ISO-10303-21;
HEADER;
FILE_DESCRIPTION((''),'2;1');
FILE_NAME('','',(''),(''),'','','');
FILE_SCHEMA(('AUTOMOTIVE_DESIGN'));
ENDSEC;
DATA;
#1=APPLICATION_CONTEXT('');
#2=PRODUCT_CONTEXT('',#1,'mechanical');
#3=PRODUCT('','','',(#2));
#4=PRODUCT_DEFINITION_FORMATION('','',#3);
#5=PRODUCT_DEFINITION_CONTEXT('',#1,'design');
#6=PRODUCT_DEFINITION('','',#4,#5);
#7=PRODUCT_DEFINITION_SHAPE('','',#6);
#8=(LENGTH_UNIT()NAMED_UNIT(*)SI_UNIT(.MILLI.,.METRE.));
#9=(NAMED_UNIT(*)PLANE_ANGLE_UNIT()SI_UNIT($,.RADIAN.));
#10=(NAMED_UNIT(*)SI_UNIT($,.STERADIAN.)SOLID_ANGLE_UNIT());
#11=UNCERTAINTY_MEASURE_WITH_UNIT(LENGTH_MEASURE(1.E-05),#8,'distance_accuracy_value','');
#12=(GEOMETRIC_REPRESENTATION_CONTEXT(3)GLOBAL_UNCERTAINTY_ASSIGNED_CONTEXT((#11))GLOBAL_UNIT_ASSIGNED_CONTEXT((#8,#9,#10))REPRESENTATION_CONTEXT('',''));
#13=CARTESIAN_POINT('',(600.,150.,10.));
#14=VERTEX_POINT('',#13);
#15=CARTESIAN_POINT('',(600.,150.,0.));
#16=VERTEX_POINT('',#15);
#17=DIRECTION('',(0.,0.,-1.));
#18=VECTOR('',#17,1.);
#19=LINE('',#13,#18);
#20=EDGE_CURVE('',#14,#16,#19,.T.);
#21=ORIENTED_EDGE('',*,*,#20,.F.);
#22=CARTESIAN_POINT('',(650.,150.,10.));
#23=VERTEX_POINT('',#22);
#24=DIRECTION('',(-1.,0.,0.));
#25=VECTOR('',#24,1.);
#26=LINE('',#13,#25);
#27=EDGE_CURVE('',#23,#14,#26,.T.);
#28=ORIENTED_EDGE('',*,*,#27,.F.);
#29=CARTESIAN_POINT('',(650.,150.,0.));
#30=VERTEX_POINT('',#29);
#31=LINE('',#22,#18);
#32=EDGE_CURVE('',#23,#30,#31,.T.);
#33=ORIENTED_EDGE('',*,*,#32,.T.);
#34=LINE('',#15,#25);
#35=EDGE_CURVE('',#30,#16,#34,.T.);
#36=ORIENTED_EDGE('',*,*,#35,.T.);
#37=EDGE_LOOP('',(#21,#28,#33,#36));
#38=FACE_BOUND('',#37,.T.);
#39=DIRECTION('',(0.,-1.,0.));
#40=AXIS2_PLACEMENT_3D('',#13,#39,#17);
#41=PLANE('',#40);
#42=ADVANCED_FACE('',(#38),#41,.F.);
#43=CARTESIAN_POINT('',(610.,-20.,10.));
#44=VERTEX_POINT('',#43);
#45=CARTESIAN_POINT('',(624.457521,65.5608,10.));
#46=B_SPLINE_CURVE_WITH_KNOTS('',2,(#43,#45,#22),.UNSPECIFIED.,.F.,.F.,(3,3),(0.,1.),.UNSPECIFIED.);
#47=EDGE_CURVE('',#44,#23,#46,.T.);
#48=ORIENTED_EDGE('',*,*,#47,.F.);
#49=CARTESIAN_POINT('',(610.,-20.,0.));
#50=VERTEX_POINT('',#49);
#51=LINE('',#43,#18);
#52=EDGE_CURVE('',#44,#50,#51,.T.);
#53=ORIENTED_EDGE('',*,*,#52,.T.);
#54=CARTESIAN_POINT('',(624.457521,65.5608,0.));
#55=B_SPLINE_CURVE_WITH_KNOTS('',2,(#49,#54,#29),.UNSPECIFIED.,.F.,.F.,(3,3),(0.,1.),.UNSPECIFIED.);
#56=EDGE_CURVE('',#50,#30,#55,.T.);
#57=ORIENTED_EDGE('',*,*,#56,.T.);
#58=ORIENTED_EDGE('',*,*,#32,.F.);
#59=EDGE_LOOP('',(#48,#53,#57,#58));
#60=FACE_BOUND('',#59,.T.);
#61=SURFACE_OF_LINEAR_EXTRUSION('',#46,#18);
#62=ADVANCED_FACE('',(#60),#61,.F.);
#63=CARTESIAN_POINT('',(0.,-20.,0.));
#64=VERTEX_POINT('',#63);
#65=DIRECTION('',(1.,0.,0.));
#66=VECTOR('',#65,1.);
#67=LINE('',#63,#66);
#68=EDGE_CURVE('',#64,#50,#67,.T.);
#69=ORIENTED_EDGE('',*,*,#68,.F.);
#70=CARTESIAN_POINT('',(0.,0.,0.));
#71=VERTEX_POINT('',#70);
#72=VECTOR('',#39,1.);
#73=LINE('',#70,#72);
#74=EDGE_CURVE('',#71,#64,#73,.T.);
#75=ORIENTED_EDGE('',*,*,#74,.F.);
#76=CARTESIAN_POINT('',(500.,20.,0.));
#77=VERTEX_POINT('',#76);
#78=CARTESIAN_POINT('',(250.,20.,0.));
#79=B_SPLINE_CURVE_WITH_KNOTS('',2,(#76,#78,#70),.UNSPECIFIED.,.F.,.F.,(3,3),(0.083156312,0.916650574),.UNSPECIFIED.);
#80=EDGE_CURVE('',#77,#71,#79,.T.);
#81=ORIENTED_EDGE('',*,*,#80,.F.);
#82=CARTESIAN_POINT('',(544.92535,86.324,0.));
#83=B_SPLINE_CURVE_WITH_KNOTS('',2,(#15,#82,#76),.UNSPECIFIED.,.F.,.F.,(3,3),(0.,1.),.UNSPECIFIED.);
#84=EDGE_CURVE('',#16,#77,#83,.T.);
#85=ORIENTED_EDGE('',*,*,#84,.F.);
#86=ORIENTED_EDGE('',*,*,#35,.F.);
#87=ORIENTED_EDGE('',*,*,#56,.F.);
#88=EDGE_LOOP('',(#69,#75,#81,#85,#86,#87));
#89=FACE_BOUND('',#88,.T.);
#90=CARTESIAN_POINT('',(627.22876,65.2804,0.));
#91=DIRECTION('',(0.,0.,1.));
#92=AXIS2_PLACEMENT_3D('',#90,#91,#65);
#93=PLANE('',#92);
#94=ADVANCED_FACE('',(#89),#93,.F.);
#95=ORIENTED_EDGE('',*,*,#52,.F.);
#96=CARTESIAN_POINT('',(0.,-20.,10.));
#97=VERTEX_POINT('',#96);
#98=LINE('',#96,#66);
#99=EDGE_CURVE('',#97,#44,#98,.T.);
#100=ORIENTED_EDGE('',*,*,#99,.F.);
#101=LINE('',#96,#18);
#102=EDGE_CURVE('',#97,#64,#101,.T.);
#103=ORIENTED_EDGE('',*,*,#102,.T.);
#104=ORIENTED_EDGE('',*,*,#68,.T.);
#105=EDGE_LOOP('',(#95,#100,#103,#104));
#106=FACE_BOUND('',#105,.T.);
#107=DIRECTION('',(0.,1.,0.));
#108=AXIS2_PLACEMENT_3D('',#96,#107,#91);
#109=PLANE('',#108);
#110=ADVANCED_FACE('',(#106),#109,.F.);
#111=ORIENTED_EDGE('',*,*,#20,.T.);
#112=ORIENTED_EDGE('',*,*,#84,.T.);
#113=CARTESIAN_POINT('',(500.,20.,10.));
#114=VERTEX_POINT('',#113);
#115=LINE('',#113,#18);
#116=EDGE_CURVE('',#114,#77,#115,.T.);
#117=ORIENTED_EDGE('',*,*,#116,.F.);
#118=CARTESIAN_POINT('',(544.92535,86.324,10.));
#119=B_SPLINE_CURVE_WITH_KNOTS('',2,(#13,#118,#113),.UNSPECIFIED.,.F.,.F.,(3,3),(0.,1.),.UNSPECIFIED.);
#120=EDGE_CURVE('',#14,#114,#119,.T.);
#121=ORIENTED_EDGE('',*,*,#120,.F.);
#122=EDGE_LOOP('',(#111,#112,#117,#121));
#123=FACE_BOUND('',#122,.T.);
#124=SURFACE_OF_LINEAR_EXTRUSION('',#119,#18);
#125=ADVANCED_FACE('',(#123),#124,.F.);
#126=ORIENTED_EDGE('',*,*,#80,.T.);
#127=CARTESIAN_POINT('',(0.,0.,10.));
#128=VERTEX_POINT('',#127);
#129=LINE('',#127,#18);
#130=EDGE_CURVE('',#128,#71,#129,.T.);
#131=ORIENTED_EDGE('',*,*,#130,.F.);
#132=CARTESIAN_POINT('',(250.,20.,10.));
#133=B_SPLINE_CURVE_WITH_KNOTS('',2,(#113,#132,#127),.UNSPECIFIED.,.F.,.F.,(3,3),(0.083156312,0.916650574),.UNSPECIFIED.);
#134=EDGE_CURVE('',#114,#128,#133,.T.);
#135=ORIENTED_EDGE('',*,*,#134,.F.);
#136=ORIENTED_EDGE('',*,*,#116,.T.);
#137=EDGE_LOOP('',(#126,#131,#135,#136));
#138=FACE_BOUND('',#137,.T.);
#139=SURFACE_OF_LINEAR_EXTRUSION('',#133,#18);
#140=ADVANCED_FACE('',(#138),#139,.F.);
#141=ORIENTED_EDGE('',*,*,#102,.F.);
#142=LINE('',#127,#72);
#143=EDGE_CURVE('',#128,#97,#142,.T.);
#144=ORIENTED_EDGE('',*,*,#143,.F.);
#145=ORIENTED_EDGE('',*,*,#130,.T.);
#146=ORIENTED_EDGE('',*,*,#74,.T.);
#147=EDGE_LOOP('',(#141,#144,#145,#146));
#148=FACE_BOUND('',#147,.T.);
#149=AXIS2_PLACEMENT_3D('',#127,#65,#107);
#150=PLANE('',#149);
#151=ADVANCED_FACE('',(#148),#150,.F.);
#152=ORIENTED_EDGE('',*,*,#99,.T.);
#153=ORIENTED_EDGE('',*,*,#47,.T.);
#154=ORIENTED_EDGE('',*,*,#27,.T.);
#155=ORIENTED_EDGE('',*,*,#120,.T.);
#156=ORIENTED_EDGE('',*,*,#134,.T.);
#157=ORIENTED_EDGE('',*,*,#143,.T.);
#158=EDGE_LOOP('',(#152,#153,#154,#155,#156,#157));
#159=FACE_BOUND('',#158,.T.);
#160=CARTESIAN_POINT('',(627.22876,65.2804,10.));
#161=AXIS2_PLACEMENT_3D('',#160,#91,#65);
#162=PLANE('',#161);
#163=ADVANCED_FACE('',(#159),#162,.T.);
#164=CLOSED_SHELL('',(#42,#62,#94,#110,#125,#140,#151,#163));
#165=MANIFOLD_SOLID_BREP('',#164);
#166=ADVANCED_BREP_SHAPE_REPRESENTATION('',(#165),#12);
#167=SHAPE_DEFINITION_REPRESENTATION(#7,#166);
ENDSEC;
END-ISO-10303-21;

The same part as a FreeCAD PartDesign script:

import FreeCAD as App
import Part
import Sketcher

V = App.Vector

doc = App.newDocument("Part")
params = doc.addObject("Spreadsheet::Sheet", "Params")
for row, (alias, value) in enumerate([
    ("pad1_length", "10 mm"),
], start=1):
    params.set(f"A{row}", alias)
    params.set(f"B{row}", "=" + value)
    params.setAlias(f"B{row}", alias)

body = doc.addObject("PartDesign::Body", "Body")

sketch1 = body.newObject("Sketcher::SketchObject", "Sketch")
sketch1.AttachmentSupport = (doc.getObject("XY_Plane"), [""])
sketch1.MapMode = "FlatFace"
sketch1.addGeometry([
    Part.LineSegment(V(0, 0, 0), V(0, -20, 0)),
    Part.LineSegment(V(0, -20, 0), V(610, -20, 0)),
    Part.BSplineCurve([V(610, -20, 0), V(624.457521, 65.5608, 0), V(650, 150, 0)], [3, 3], [0, 1], False, 2, [1, 1, 1], False),
    Part.LineSegment(V(650, 150, 0), V(600, 150, 0)),
    Part.BSplineCurve([V(600, 150, 0), V(544.92535, 86.324, 0), V(500, 20, 0)], [3, 3], [0, 1], False, 2, [1, 1, 1], False),
    Part.BSplineCurve([V(0, 0, 0), V(250, 20, 0), V(500, 20, 0)], [3, 3], [0.083156312, 0.916650574], False, 2, [1, 1, 1], False),
], False)
sketch1.addConstraint([
    Sketcher.Constraint("Block", 2),
    Sketcher.Constraint("Block", 4),
    Sketcher.Constraint("Block", 5),
    Sketcher.Constraint("Coincident", 0, 2, 1, 1),
    Sketcher.Constraint("Coincident", 1, 2, 2, 1),
    Sketcher.Constraint("Coincident", 2, 2, 3, 1),
    Sketcher.Constraint("Coincident", 3, 2, 4, 1),
    Sketcher.Constraint("Coincident", 5, 1, 0, 1),
    Sketcher.Constraint("Vertical", 0),
    Sketcher.Constraint("Horizontal", 1),
])
pad1 = body.newObject("PartDesign::Pad", "Pad")
pad1.Profile = sketch1
pad1.setExpression("Length", "Params.pad1_length")

doc.recompute()
